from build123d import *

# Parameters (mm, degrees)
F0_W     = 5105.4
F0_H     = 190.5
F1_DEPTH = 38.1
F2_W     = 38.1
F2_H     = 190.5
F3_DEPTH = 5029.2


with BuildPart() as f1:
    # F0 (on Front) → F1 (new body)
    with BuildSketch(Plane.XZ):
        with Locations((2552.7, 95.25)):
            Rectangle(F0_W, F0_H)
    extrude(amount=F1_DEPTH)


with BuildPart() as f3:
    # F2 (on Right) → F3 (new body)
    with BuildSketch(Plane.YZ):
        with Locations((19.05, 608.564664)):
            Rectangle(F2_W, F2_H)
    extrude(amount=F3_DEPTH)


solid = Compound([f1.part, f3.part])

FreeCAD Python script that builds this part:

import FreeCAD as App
import Part
import Sketcher

V = App.Vector
Q = App.Units.Quantity

doc = App.newDocument("Part")
body = doc.addObject("PartDesign::Body", "Body")

# Sketch on XZ plane
sketch1 = body.newObject("Sketcher::SketchObject", "Sketch")
sketch1.AttachmentSupport = (doc.getObject("XZ_Plane"), [""])
sketch1.MapMode = "FlatFace"
sketch1.addGeometry(Part.LineSegment(V(0, 190.5, 0), V(0, 0, 0)), False)
sketch1.addGeometry(Part.LineSegment(V(0, 0, 0), V(5105.4, 0, 0)), False)
sketch1.addGeometry(Part.LineSegment(V(5105.4, 0, 0), V(5105.4, 190.5, 0)), False)
sketch1.addGeometry(Part.LineSegment(V(5105.4, 190.5, 0), V(0, 190.5, 0)), False)
sketch1.addConstraint(Sketcher.Constraint("Coincident", 0, 2, 1, 1))
sketch1.addConstraint(Sketcher.Constraint("Coincident", 1, 2, 2, 1))
sketch1.addConstraint(Sketcher.Constraint("Coincident", 2, 2, 3, 1))
sketch1.addConstraint(Sketcher.Constraint("Coincident", 3, 2, 0, 1))
sketch1.addConstraint(Sketcher.Constraint("Vertical", 0))
sketch1.addConstraint(Sketcher.Constraint("Horizontal", 1))
sketch1.addConstraint(Sketcher.Constraint("Vertical", 2))
sketch1.addConstraint(Sketcher.Constraint("Horizontal", 3))
sketch1.addConstraint(Sketcher.Constraint("Coincident", 0, 2, -1, 1))
sketch1.addConstraint(Sketcher.Constraint("DistanceX", 1, 1, 1, 2, Q("201 in")))
sketch1.addConstraint(Sketcher.Constraint("DistanceY", 0, 2, 0, 1, Q("7.5 in")))
pad1 = body.newObject("PartDesign::Pad", "Pad")
pad1.Profile = sketch1
pad1.Length = Q("1.5 in")
body2 = doc.addObject("PartDesign::Body", "Body001")

# Sketch on YZ plane
sketch2 = body2.newObject("Sketcher::SketchObject", "Sketch001")
sketch2.AttachmentSupport = (doc.getObject("YZ_Plane001"), [""])
sketch2.MapMode = "FlatFace"
sketch2.addGeometry(Part.LineSegment(V(0, 703.814664, 0), V(0, 513.314664, 0)), False)
sketch2.addGeometry(Part.LineSegment(V(0, 513.314664, 0), V(38.1, 513.314664, 0)), False)
sketch2.addGeometry(Part.LineSegment(V(38.1, 513.314664, 0), V(38.1, 703.814664, 0)), False)
sketch2.addGeometry(Part.LineSegment(V(38.1, 703.814664, 0), V(0, 703.814664, 0)), False)
sketch2.addConstraint(Sketcher.Constraint("Coincident", 0, 2, 1, 1))
sketch2.addConstraint(Sketcher.Constraint("Coincident", 1, 2, 2, 1))
sketch2.addConstraint(Sketcher.Constraint("Coincident", 2, 2, 3, 1))
sketch2.addConstraint(Sketcher.Constraint("Coincident", 3, 2, 0, 1))
sketch2.addConstraint(Sketcher.Constraint("Vertical", 0))
sketch2.addConstraint(Sketcher.Constraint("Horizontal", 1))
sketch2.addConstraint(Sketcher.Constraint("Vertical", 2))
sketch2.addConstraint(Sketcher.Constraint("Horizontal", 3))
sketch2.addConstraint(Sketcher.Constraint("PointOnObject", 0, 2, -2))
sketch2.addConstraint(Sketcher.Constraint("DistanceX", 1, 1, 1, 2, Q("1.5 in")))
sketch2.addConstraint(Sketcher.Constraint("DistanceY", 0, 2, 0, 1, Q("7.5 in")))
sketch2.addConstraint(Sketcher.Constraint("DistanceY", -1, 1, 0, 2, 513.314664))
pad2 = body2.newObject("PartDesign::Pad", "Pad001")
pad2.Profile = sketch2
pad2.Length = Q("198 in")

doc.recompute()
